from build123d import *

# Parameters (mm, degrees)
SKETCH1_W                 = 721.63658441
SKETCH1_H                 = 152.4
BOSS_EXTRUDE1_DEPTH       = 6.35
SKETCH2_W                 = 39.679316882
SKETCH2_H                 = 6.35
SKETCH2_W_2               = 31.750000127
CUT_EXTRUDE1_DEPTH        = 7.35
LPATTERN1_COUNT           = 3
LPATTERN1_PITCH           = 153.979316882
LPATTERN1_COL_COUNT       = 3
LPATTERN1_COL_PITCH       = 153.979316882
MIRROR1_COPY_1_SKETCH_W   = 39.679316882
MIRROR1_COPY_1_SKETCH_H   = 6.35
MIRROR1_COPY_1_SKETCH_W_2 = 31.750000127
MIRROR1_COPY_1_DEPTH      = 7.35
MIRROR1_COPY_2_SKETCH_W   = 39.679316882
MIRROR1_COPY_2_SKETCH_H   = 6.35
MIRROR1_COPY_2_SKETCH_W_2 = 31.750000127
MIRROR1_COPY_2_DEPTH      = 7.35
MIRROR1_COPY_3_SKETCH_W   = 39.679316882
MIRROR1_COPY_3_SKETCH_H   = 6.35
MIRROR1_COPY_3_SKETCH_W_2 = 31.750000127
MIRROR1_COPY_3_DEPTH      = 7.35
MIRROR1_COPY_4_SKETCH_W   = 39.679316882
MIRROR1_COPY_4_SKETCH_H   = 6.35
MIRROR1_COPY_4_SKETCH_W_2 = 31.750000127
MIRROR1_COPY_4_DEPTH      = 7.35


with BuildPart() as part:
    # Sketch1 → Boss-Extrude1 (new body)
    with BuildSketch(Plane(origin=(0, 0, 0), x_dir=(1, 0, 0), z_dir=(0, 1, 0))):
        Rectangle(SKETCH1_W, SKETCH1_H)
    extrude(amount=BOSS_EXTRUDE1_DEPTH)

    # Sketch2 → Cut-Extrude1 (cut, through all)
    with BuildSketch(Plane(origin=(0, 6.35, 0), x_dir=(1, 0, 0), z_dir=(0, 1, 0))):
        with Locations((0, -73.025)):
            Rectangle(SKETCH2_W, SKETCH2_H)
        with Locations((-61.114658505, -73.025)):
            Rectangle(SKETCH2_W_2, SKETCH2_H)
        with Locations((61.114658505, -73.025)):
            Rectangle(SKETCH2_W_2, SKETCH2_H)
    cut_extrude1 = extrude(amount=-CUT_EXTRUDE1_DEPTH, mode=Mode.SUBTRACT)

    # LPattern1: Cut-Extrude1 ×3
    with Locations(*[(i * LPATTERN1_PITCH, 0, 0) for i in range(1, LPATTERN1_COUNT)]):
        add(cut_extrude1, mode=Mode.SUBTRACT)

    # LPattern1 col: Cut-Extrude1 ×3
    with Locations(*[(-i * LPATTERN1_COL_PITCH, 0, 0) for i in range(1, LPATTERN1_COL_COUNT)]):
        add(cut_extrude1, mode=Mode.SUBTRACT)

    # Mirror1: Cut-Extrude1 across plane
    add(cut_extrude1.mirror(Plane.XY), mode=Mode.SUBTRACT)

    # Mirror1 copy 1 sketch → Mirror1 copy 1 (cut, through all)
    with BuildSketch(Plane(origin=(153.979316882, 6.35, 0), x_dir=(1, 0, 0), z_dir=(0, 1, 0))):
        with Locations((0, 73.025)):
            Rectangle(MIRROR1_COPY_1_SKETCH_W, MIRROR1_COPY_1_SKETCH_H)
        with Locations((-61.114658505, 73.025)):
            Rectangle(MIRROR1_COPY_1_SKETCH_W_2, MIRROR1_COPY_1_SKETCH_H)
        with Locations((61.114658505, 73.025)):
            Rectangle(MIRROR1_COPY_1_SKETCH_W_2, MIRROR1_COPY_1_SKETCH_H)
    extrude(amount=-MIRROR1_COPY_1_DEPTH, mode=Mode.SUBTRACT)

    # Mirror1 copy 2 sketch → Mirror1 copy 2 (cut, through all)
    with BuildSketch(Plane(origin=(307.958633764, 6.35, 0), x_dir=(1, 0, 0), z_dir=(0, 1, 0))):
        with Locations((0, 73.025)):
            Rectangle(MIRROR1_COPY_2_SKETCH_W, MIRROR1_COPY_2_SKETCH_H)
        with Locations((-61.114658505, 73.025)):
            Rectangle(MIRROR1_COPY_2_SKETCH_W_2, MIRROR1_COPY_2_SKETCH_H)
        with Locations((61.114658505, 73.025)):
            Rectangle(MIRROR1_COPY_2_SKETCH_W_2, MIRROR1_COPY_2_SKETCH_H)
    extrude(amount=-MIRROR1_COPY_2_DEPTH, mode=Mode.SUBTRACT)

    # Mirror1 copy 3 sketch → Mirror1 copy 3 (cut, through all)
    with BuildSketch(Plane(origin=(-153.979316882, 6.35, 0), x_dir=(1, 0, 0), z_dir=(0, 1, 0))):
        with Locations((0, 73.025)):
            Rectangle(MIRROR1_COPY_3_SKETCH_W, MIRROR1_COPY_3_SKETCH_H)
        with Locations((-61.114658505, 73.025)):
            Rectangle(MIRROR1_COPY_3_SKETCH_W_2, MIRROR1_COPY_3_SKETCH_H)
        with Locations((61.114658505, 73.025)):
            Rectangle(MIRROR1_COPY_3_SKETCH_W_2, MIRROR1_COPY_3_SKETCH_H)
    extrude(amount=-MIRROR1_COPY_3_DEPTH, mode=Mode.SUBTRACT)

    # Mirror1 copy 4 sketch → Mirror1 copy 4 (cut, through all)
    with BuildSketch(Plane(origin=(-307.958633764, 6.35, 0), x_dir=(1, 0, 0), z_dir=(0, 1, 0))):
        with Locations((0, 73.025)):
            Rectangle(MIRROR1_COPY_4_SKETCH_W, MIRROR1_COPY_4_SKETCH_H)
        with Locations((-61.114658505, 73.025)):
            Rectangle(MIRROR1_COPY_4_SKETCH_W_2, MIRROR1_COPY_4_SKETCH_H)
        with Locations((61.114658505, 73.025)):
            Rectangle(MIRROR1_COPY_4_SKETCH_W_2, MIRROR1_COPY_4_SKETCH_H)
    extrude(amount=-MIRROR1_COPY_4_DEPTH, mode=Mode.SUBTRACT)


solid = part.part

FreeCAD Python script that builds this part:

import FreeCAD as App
import Part
import Sketcher
Q = App.Units.Quantity

doc = App.newDocument("Part")
body = doc.addObject("PartDesign::Body", "Body")

sketch1 = body.newObject("Sketcher::SketchObject", "Sketch")
sketch1.AttachmentSupport = (doc.getObject("XZ_Plane"), [""])
sketch1.MapMode = "FlatFace"
sketch1.addGeometry([
    Part.LineSegment(App.Vector(-361, -76, 0), App.Vector(-361, 76, 0)),
    Part.LineSegment(App.Vector(-361, 76, 0), App.Vector(361, 76, 0)),
    Part.LineSegment(App.Vector(361, 76, 0), App.Vector(361, -76, 0)),
    Part.LineSegment(App.Vector(361, -76, 0), App.Vector(-361, -76, 0)),
], False)
sketch1.addConstraint([
    Sketcher.Constraint("Coincident", 0, 2, 1, 1),
    Sketcher.Constraint("Coincident", 1, 2, 2, 1),
    Sketcher.Constraint("Coincident", 2, 2, 3, 1),
    Sketcher.Constraint("Coincident", 3, 2, 0, 1),
    Sketcher.Constraint("Vertical", 0),
    Sketcher.Constraint("Horizontal", 1),
    Sketcher.Constraint("Vertical", 2),
    Sketcher.Constraint("Horizontal", 3),
    Sketcher.Constraint("Symmetric", 0, 2, 2, 2, -1, 1),
    Sketcher.Constraint("DistanceY", 0, 1, 0, 2, Q("6 in")),
    Sketcher.Constraint("DistanceX", 1, 1, 1, 2, 721.636584),
])
pad1 = body.newObject("PartDesign::Pad", "Pad")
pad1.Profile = sketch1
pad1.Length = Q("0.25 in")
pad1.Reversed = True

sketch2 = body.newObject("Sketcher::SketchObject", "Sketch001")
sketch2.AttachmentSupport = (doc.getObject("XZ_Plane"), [""])
sketch2.MapMode = "FlatFace"
sketch2.AttachmentOffset = App.Placement(App.Vector(0, 0, -0.25 * 25.4), App.Rotation())
sketch2.addGeometry([
    Part.LineSegment(App.Vector(-20, 70, 0), App.Vector(-20, 76, 0)),
    Part.LineSegment(App.Vector(-20, 76, 0), App.Vector(20, 76, 0)),
    Part.LineSegment(App.Vector(20, 76, 0), App.Vector(20, 70, 0)),
    Part.LineSegment(App.Vector(20, 70, 0), App.Vector(-20, 70, 0)),
    Part.LineSegment(App.Vector(-77, 70, 0), App.Vector(-77, 76, 0)),
    Part.LineSegment(App.Vector(-77, 76, 0), App.Vector(-45, 76, 0)),
    Part.LineSegment(App.Vector(-45, 76, 0), App.Vector(-45, 70, 0)),
    Part.LineSegment(App.Vector(-45, 70, 0), App.Vector(-77, 70, 0)),
    Part.LineSegment(App.Vector(45, 70, 0), App.Vector(45, 76, 0)),
    Part.LineSegment(App.Vector(45, 76, 0), App.Vector(77, 76, 0)),
    Part.LineSegment(App.Vector(77, 76, 0), App.Vector(77, 70, 0)),
    Part.LineSegment(App.Vector(77, 70, 0), App.Vector(45, 70, 0)),
], False)
sketch2.addConstraint([
    Sketcher.Constraint("Coincident", 0, 2, 1, 1),
    Sketcher.Constraint("Coincident", 1, 2, 2, 1),
    Sketcher.Constraint("Coincident", 2, 2, 3, 1),
    Sketcher.Constraint("Coincident", 3, 2, 0, 1),
    Sketcher.Constraint("Coincident", 4, 2, 5, 1),
    Sketcher.Constraint("Coincident", 5, 2, 6, 1),
    Sketcher.Constraint("Coincident", 6, 2, 7, 1),
    Sketcher.Constraint("Coincident", 7, 2, 4, 1),
    Sketcher.Constraint("Coincident", 8, 2, 9, 1),
    Sketcher.Constraint("Coincident", 9, 2, 10, 1),
    Sketcher.Constraint("Coincident", 10, 2, 11, 1),
    Sketcher.Constraint("Coincident", 11, 2, 8, 1),
    Sketcher.Constraint("Vertical", 0),
    Sketcher.Constraint("Horizontal", 1),
    Sketcher.Constraint("Vertical", 2),
    Sketcher.Constraint("Horizontal", 3),
    Sketcher.Constraint("Vertical", 4),
    Sketcher.Constraint("Horizontal", 5),
    Sketcher.Constraint("Vertical", 6),
    Sketcher.Constraint("Horizontal", 7),
    Sketcher.Constraint("Vertical", 8),
    Sketcher.Constraint("Horizontal", 9),
    Sketcher.Constraint("Vertical", 10),
    Sketcher.Constraint("Horizontal", 11),
    Sketcher.Constraint("Symmetric", 5, 2, 8, 2, -2),
    Sketcher.Constraint("Symmetric", 7, 2, 10, 2, -2),
    Sketcher.Constraint("Horizontal", 1, 2, 4, 2),
    Sketcher.Constraint("Horizontal", 3, 2, 6, 2),
    Sketcher.Constraint("DistanceY", -1, 1, 0, 2, Q("3 in")),
    Sketcher.Constraint("DistanceX", 5, 2, 0, 2, Q("1 in")),
    Sketcher.Constraint("DistanceX", 1, 2, 8, 2, Q("1 in")),
    Sketcher.Constraint("DistanceX", 5, 1, 5, 2, Q("1.25 in")),
    Sketcher.Constraint("DistanceY", 0, 1, 0, 2, Q("0.25 in")),
    Sketcher.Constraint("DistanceX", 1, 1, 1, 2, 39.679317),
])
pocket1 = body.newObject("PartDesign::Pocket", "Pocket")
pocket1.Profile = sketch2
pocket1.Type = "ThroughAll"
pocket1.Reversed = True
doc.recompute()

linearpattern = body.newObject("PartDesign::LinearPattern", "LinearPattern")
linearpattern.Originals = [pocket1]
linearpattern.Direction = (doc.getObject("X_Axis"), [""])
linearpattern.Mode = "offset"
linearpattern.Offset = 153.979317
linearpattern.Occurrences = 3
body.Tip = linearpattern
doc.recompute()

linearpattern2 = body.newObject("PartDesign::LinearPattern", "LinearPattern001")
linearpattern2.Originals = [pocket1]
linearpattern2.Direction = (doc.getObject("X_Axis"), [""])
linearpattern2.Mode = "offset"
linearpattern2.Offset = 153.979317
linearpattern2.Occurrences = 3
linearpattern2.Reversed = True
body.Tip = linearpattern2
doc.recompute()

mirrored = body.newObject("PartDesign::Mirrored", "Mirrored")
mirrored.Originals = [pocket1]
mirrored.MirrorPlane = (doc.getObject("XY_Plane"), [""])
body.Tip = mirrored

sketch3 = body.newObject("Sketcher::SketchObject", "Sketch002")
sketch3.AttachmentSupport = (doc.getObject("XZ_Plane"), [""])
sketch3.MapMode = "FlatFace"
sketch3.AttachmentOffset = App.Placement(App.Vector(0, 0, -0.25 * 25.4), App.Rotation())
sketch3.addGeometry([
    Part.LineSegment(App.Vector(134, -76, 0), App.Vector(134, -70, 0)),
    Part.LineSegment(App.Vector(134, -70, 0), App.Vector(174, -70, 0)),
    Part.LineSegment(App.Vector(174, -70, 0), App.Vector(174, -76, 0)),
    Part.LineSegment(App.Vector(174, -76, 0), App.Vector(134, -76, 0)),
    Part.LineSegment(App.Vector(77, -76, 0), App.Vector(77, -70, 0)),
    Part.LineSegment(App.Vector(77, -70, 0), App.Vector(109, -70, 0)),
    Part.LineSegment(App.Vector(109, -70, 0), App.Vector(109, -76, 0)),
    Part.LineSegment(App.Vector(109, -76, 0), App.Vector(77, -76, 0)),
    Part.LineSegment(App.Vector(199, -76, 0), App.Vector(199, -70, 0)),
    Part.LineSegment(App.Vector(199, -70, 0), App.Vector(231, -70, 0)),
    Part.LineSegment(App.Vector(231, -70, 0), App.Vector(231, -76, 0)),
    Part.LineSegment(App.Vector(231, -76, 0), App.Vector(199, -76, 0)),
], False)
sketch3.addConstraint([
    Sketcher.Constraint("Coincident", 0, 2, 1, 1),
    Sketcher.Constraint("Coincident", 1, 2, 2, 1),
    Sketcher.Constraint("Coincident", 2, 2, 3, 1),
    Sketcher.Constraint("Coincident", 3, 2, 0, 1),
    Sketcher.Constraint("Coincident", 4, 2, 5, 1),
    Sketcher.Constraint("Coincident", 5, 2, 6, 1),
    Sketcher.Constraint("Coincident", 6, 2, 7, 1),
    Sketcher.Constraint("Coincident", 7, 2, 4, 1),
    Sketcher.Constraint("Coincident", 8, 2, 9, 1),
    Sketcher.Constraint("Coincident", 9, 2, 10, 1),
    Sketcher.Constraint("Coincident", 10, 2, 11, 1),
    Sketcher.Constraint("Coincident", 11, 2, 8, 1),
    Sketcher.Constraint("Vertical", 0),
    Sketcher.Constraint("Horizontal", 1),
    Sketcher.Constraint("Vertical", 2),
    Sketcher.Constraint("Horizontal", 3),
    Sketcher.Constraint("Vertical", 4),
    Sketcher.Constraint("Horizontal", 5),
    Sketcher.Constraint("Vertical", 6),
    Sketcher.Constraint("Horizontal", 7),
    Sketcher.Constraint("Vertical", 8),
    Sketcher.Constraint("Horizontal", 9),
    Sketcher.Constraint("Vertical", 10),
    Sketcher.Constraint("Horizontal", 11),
    Sketcher.Constraint("Horizontal", 1, 2, 4, 2),
    Sketcher.Constraint("Horizontal", 3, 2, 6, 2),
    Sketcher.Constraint("Horizontal", 5, 2, 8, 2),
    Sketcher.Constraint("Horizontal", 7, 2, 10, 2),
    Sketcher.Constraint("Equal", 7, 9),
    Sketcher.Constraint("DistanceY", 2, 2, -1, 1, Q("3 in")),
    Sketcher.Constraint("DistanceX", 5, 2, 0, 2, Q("1 in")),
    Sketcher.Constraint("DistanceX", 1, 2, 8, 2, Q("1 in")),
    Sketcher.Constraint("DistanceX", 5, 1, 5, 2, Q("1.25 in")),
    Sketcher.Constraint("DistanceY", 0, 1, 0, 2, Q("0.25 in")),
    Sketcher.Constraint("DistanceX", 1, 1, 1, 2, 39.679317),
    Sketcher.Constraint("DistanceX", -1, 1, 0, 2, 134.139658),
])
pocket2 = body.newObject("PartDesign::Pocket", "Pocket001")
pocket2.Profile = sketch3
pocket2.Type = "ThroughAll"
pocket2.Reversed = True

sketch4 = body.newObject("Sketcher::SketchObject", "Sketch003")
sketch4.AttachmentSupport = (doc.getObject("XZ_Plane"), [""])
sketch4.MapMode = "FlatFace"
sketch4.AttachmentOffset = App.Placement(App.Vector(0, 0, -0.25 * 25.4), App.Rotation())
sketch4.addGeometry([
    Part.LineSegment(App.Vector(288, -76, 0), App.Vector(288, -70, 0)),
    Part.LineSegment(App.Vector(288, -70, 0), App.Vector(328, -70, 0)),
    Part.LineSegment(App.Vector(328, -70, 0), App.Vector(328, -76, 0)),
    Part.LineSegment(App.Vector(328, -76, 0), App.Vector(288, -76, 0)),
    Part.LineSegment(App.Vector(231, -76, 0), App.Vector(231, -70, 0)),
    Part.LineSegment(App.Vector(231, -70, 0), App.Vector(263, -70, 0)),
    Part.LineSegment(App.Vector(263, -70, 0), App.Vector(263, -76, 0)),
    Part.LineSegment(App.Vector(263, -76, 0), App.Vector(231, -76, 0)),
    Part.LineSegment(App.Vector(353, -76, 0), App.Vector(353, -70, 0)),
    Part.LineSegment(App.Vector(353, -70, 0), App.Vector(385, -70, 0)),
    Part.LineSegment(App.Vector(385, -70, 0), App.Vector(385, -76, 0)),
    Part.LineSegment(App.Vector(385, -76, 0), App.Vector(353, -76, 0)),
], False)
sketch4.addConstraint([
    Sketcher.Constraint("Coincident", 0, 2, 1, 1),
    Sketcher.Constraint("Coincident", 1, 2, 2, 1),
    Sketcher.Constraint("Coincident", 2, 2, 3, 1),
    Sketcher.Constraint("Coincident", 3, 2, 0, 1),
    Sketcher.Constraint("Coincident", 4, 2, 5, 1),
    Sketcher.Constraint("Coincident", 5, 2, 6, 1),
    Sketcher.Constraint("Coincident", 6, 2, 7, 1),
    Sketcher.Constraint("Coincident", 7, 2, 4, 1),
    Sketcher.Constraint("Coincident", 8, 2, 9, 1),
    Sketcher.Constraint("Coincident", 9, 2, 10, 1),
    Sketcher.Constraint("Coincident", 10, 2, 11, 1),
    Sketcher.Constraint("Coincident", 11, 2, 8, 1),
    Sketcher.Constraint("Vertical", 0),
    Sketcher.Constraint("Horizontal", 1),
    Sketcher.Constraint("Vertical", 2),
    Sketcher.Constraint("Horizontal", 3),
    Sketcher.Constraint("Vertical", 4),
    Sketcher.Constraint("Horizontal", 5),
    Sketcher.Constraint("Vertical", 6),
    Sketcher.Constraint("Horizontal", 7),
    Sketcher.Constraint("Vertical", 8),
    Sketcher.Constraint("Horizontal", 9),
    Sketcher.Constraint("Vertical", 10),
    Sketcher.Constraint("Horizontal", 11),
    Sketcher.Constraint("Horizontal", 1, 2, 4, 2),
    Sketcher.Constraint("Horizontal", 3, 2, 6, 2),
    Sketcher.Constraint("Horizontal", 5, 2, 8, 2),
    Sketcher.Constraint("Horizontal", 7, 2, 10, 2),
    Sketcher.Constraint("Equal", 7, 9),
    Sketcher.Constraint("DistanceY", 2, 2, -1, 1, Q("3 in")),
    Sketcher.Constraint("DistanceX", 5, 2, 0, 2, Q("1 in")),
    Sketcher.Constraint("DistanceX", 1, 2, 8, 2, Q("1 in")),
    Sketcher.Constraint("DistanceX", 5, 1, 5, 2, Q("1.25 in")),
    Sketcher.Constraint("DistanceY", 0, 1, 0, 2, Q("0.25 in")),
    Sketcher.Constraint("DistanceX", 1, 1, 1, 2, 39.679317),
    Sketcher.Constraint("DistanceX", -1, 1, 0, 2, 288.118975),
])
pocket3 = body.newObject("PartDesign::Pocket", "Pocket002")
pocket3.Profile = sketch4
pocket3.Type = "ThroughAll"
pocket3.Reversed = True

sketch5 = body.newObject("Sketcher::SketchObject", "Sketch004")
sketch5.AttachmentSupport = (doc.getObject("XZ_Plane"), [""])
sketch5.MapMode = "FlatFace"
sketch5.AttachmentOffset = App.Placement(App.Vector(0, 0, -0.25 * 25.4), App.Rotation())
sketch5.addGeometry([
    Part.LineSegment(App.Vector(-174, -76, 0), App.Vector(-174, -70, 0)),
    Part.LineSegment(App.Vector(-174, -70, 0), App.Vector(-134, -70, 0)),
    Part.LineSegment(App.Vector(-134, -70, 0), App.Vector(-134, -76, 0)),
    Part.LineSegment(App.Vector(-134, -76, 0), App.Vector(-174, -76, 0)),
    Part.LineSegment(App.Vector(-231, -76, 0), App.Vector(-231, -70, 0)),
    Part.LineSegment(App.Vector(-231, -70, 0), App.Vector(-199, -70, 0)),
    Part.LineSegment(App.Vector(-199, -70, 0), App.Vector(-199, -76, 0)),
    Part.LineSegment(App.Vector(-199, -76, 0), App.Vector(-231, -76, 0)),
    Part.LineSegment(App.Vector(-109, -76, 0), App.Vector(-109, -70, 0)),
    Part.LineSegment(App.Vector(-109, -70, 0), App.Vector(-77, -70, 0)),
    Part.LineSegment(App.Vector(-77, -70, 0), App.Vector(-77, -76, 0)),
    Part.LineSegment(App.Vector(-77, -76, 0), App.Vector(-109, -76, 0)),
], False)
sketch5.addConstraint([
    Sketcher.Constraint("Coincident", 0, 2, 1, 1),
    Sketcher.Constraint("Coincident", 1, 2, 2, 1),
    Sketcher.Constraint("Coincident", 2, 2, 3, 1),
    Sketcher.Constraint("Coincident", 3, 2, 0, 1),
    Sketcher.Constraint("Coincident", 4, 2, 5, 1),
    Sketcher.Constraint("Coincident", 5, 2, 6, 1),
    Sketcher.Constraint("Coincident", 6, 2, 7, 1),
    Sketcher.Constraint("Coincident", 7, 2, 4, 1),
    Sketcher.Constraint("Coincident", 8, 2, 9, 1),
    Sketcher.Constraint("Coincident", 9, 2, 10, 1),
    Sketcher.Constraint("Coincident", 10, 2, 11, 1),
    Sketcher.Constraint("Coincident", 11, 2, 8, 1),
    Sketcher.Constraint("Vertical", 0),
    Sketcher.Constraint("Horizontal", 1),
    Sketcher.Constraint("Vertical", 2),
    Sketcher.Constraint("Horizontal", 3),
    Sketcher.Constraint("Vertical", 4),
    Sketcher.Constraint("Horizontal", 5),
    Sketcher.Constraint("Vertical", 6),
    Sketcher.Constraint("Horizontal", 7),
    Sketcher.Constraint("Vertical", 8),
    Sketcher.Constraint("Horizontal", 9),
    Sketcher.Constraint("Vertical", 10),
    Sketcher.Constraint("Horizontal", 11),
    Sketcher.Constraint("Horizontal", 1, 2, 4, 2),
    Sketcher.Constraint("Horizontal", 3, 2, 6, 2),
    Sketcher.Constraint("Horizontal", 5, 2, 8, 2),
    Sketcher.Constraint("Horizontal", 7, 2, 10, 2),
    Sketcher.Constraint("Equal", 7, 9),
    Sketcher.Constraint("DistanceY", 2, 2, -1, 1, Q("3 in")),
    Sketcher.Constraint("DistanceX", 5, 2, 0, 2, Q("1 in")),
    Sketcher.Constraint("DistanceX", 1, 2, 8, 2, Q("1 in")),
    Sketcher.Constraint("DistanceX", 5, 1, 5, 2, Q("1.25 in")),
    Sketcher.Constraint("DistanceY", 0, 1, 0, 2, Q("0.25 in")),
    Sketcher.Constraint("DistanceX", 1, 1, 1, 2, 39.679317),
    Sketcher.Constraint("DistanceX", 1, 2, -1, 1, 134.139658),
])
pocket4 = body.newObject("PartDesign::Pocket", "Pocket003")
pocket4.Profile = sketch5
pocket4.Type = "ThroughAll"
pocket4.Reversed = True

sketch6 = body.newObject("Sketcher::SketchObject", "Sketch005")
sketch6.AttachmentSupport = (doc.getObject("XZ_Plane"), [""])
sketch6.MapMode = "FlatFace"
sketch6.AttachmentOffset = App.Placement(App.Vector(0, 0, -0.25 * 25.4), App.Rotation())
sketch6.addGeometry([
    Part.LineSegment(App.Vector(-328, -76, 0), App.Vector(-328, -70, 0)),
    Part.LineSegment(App.Vector(-328, -70, 0), App.Vector(-288, -70, 0)),
    Part.LineSegment(App.Vector(-288, -70, 0), App.Vector(-288, -76, 0)),
    Part.LineSegment(App.Vector(-288, -76, 0), App.Vector(-328, -76, 0)),
    Part.LineSegment(App.Vector(-385, -76, 0), App.Vector(-385, -70, 0)),
    Part.LineSegment(App.Vector(-385, -70, 0), App.Vector(-353, -70, 0)),
    Part.LineSegment(App.Vector(-353, -70, 0), App.Vector(-353, -76, 0)),
    Part.LineSegment(App.Vector(-353, -76, 0), App.Vector(-385, -76, 0)),
    Part.LineSegment(App.Vector(-263, -76, 0), App.Vector(-263, -70, 0)),
    Part.LineSegment(App.Vector(-263, -70, 0), App.Vector(-231, -70, 0)),
    Part.LineSegment(App.Vector(-231, -70, 0), App.Vector(-231, -76, 0)),
    Part.LineSegment(App.Vector(-231, -76, 0), App.Vector(-263, -76, 0)),
], False)
sketch6.addConstraint([
    Sketcher.Constraint("Coincident", 0, 2, 1, 1),
    Sketcher.Constraint("Coincident", 1, 2, 2, 1),
    Sketcher.Constraint("Coincident", 2, 2, 3, 1),
    Sketcher.Constraint("Coincident", 3, 2, 0, 1),
    Sketcher.Constraint("Coincident", 4, 2, 5, 1),
    Sketcher.Constraint("Coincident", 5, 2, 6, 1),
    Sketcher.Constraint("Coincident", 6, 2, 7, 1),
    Sketcher.Constraint("Coincident", 7, 2, 4, 1),
    Sketcher.Constraint("Coincident", 8, 2, 9, 1),
    Sketcher.Constraint("Coincident", 9, 2, 10, 1),
    Sketcher.Constraint("Coincident", 10, 2, 11, 1),
    Sketcher.Constraint("Coincident", 11, 2, 8, 1),
    Sketcher.Constraint("Vertical", 0),
    Sketcher.Constraint("Horizontal", 1),
    Sketcher.Constraint("Vertical", 2),
    Sketcher.Constraint("Horizontal", 3),
    Sketcher.Constraint("Vertical", 4),
    Sketcher.Constraint("Horizontal", 5),
    Sketcher.Constraint("Vertical", 6),
    Sketcher.Constraint("Horizontal", 7),
    Sketcher.Constraint("Vertical", 8),
    Sketcher.Constraint("Horizontal", 9),
    Sketcher.Constraint("Vertical", 10),
    Sketcher.Constraint("Horizontal", 11),
    Sketcher.Constraint("Horizontal", 1, 2, 4, 2),
    Sketcher.Constraint("Horizontal", 3, 2, 6, 2),
    Sketcher.Constraint("Horizontal", 5, 2, 8, 2),
    Sketcher.Constraint("Horizontal", 7, 2, 10, 2),
    Sketcher.Constraint("Equal", 7, 9),
    Sketcher.Constraint("DistanceY", 2, 2, -1, 1, Q("3 in")),
    Sketcher.Constraint("DistanceX", 5, 2, 0, 2, Q("1 in")),
    Sketcher.Constraint("DistanceX", 1, 2, 8, 2, Q("1 in")),
    Sketcher.Constraint("DistanceX", 5, 1, 5, 2, Q("1.25 in")),
    Sketcher.Constraint("DistanceY", 0, 1, 0, 2, Q("0.25 in")),
    Sketcher.Constraint("DistanceX", 1, 1, 1, 2, 39.679317),
    Sketcher.Constraint("DistanceX", 0, 2, -1, 1, 327.798292),
])
pocket5 = body.newObject("PartDesign::Pocket", "Pocket004")
pocket5.Profile = sketch6
pocket5.Type = "ThroughAll"
pocket5.Reversed = True

doc.recompute()
